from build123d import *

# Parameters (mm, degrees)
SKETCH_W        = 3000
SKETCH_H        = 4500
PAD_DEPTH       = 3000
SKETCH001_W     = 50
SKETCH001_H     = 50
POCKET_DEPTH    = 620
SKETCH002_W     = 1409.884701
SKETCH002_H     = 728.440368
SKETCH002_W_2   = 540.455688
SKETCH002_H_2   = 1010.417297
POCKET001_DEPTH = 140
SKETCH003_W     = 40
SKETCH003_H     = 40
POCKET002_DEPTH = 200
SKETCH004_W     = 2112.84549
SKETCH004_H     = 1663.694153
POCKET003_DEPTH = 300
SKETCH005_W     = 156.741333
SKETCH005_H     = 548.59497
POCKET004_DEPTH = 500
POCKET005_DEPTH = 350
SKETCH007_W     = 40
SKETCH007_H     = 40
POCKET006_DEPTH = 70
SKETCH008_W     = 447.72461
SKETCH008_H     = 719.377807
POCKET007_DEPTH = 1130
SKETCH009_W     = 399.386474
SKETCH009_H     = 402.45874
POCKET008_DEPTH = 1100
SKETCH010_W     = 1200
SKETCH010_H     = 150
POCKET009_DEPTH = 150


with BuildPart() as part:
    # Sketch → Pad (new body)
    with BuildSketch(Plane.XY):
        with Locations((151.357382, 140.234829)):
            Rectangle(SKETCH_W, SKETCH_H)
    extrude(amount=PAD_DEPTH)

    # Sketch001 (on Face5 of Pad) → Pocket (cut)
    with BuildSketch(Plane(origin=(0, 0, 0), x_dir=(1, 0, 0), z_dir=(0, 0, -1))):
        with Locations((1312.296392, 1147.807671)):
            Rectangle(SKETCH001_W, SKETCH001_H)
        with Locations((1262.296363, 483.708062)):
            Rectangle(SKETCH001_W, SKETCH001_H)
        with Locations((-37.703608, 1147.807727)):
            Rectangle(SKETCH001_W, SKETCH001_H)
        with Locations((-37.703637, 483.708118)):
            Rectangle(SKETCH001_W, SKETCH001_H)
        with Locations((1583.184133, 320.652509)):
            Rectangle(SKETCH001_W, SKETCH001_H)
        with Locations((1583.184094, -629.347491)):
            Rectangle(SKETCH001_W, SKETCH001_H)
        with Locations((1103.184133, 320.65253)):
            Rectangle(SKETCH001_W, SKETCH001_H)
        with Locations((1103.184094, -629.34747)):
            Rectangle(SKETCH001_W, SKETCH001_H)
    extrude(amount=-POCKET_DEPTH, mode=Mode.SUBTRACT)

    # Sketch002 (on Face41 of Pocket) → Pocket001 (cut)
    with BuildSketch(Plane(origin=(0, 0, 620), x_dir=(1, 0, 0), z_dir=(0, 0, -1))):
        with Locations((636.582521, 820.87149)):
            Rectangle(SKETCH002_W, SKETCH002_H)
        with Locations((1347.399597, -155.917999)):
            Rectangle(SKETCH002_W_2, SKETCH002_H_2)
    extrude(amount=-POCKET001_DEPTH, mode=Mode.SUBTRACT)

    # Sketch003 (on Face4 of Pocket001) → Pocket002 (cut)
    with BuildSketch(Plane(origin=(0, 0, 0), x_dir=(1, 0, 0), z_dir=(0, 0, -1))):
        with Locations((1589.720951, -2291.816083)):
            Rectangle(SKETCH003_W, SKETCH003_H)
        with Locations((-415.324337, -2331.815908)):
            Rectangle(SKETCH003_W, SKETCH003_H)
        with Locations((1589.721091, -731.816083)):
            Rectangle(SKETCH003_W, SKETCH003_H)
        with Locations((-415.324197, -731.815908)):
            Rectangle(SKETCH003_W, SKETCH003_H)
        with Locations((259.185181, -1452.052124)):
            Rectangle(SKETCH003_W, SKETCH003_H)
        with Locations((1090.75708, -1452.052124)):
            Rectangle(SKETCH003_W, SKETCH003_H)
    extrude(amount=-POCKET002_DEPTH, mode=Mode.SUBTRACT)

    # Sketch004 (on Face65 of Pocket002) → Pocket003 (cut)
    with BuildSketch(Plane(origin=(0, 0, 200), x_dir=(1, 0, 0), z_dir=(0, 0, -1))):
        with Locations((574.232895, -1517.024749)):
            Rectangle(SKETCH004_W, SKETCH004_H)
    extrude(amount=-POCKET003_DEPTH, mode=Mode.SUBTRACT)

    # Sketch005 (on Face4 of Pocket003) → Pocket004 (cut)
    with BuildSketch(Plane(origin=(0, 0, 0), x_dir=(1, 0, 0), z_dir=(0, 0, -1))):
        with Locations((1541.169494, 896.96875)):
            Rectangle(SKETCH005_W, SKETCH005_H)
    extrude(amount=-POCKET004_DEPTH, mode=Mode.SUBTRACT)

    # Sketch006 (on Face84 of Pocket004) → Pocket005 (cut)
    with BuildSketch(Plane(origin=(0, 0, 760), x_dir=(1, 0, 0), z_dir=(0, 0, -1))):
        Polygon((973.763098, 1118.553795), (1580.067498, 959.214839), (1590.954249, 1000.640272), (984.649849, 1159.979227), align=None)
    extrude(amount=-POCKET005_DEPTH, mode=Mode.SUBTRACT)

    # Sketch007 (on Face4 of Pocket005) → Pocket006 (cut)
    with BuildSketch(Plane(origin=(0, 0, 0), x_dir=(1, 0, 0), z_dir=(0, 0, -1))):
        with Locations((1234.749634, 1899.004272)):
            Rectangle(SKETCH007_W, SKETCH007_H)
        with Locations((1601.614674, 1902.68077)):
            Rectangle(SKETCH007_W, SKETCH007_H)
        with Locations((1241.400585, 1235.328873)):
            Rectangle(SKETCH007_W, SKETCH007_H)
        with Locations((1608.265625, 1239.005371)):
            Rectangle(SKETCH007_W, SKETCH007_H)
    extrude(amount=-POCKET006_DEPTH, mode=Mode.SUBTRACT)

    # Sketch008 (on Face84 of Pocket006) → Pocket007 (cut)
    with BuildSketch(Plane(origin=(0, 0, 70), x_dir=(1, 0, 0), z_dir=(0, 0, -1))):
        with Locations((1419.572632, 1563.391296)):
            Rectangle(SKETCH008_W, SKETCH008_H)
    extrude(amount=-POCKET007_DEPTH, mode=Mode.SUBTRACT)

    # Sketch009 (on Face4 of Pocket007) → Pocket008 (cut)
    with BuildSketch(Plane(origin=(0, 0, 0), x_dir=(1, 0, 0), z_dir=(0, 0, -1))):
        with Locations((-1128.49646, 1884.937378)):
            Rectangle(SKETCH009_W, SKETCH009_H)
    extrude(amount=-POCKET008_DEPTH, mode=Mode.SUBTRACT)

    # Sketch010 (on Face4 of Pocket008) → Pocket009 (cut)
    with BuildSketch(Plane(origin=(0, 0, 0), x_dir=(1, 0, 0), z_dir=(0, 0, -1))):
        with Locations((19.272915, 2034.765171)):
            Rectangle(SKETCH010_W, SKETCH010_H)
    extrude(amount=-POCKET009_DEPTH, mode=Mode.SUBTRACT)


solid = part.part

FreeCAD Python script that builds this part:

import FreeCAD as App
import Part
import Sketcher
from FreeCAD import Vector

doc = App.newDocument("Part")
body = doc.addObject("PartDesign::Body", "Body")

sketch1 = body.newObject("Sketcher::SketchObject", "Sketch")
sketch1.AttachmentSupport = (doc.getObject("XY_Plane"), [""])
sketch1.MapMode = "FlatFace"
sketch1.addGeometry([
    Part.LineSegment(Vector(-1348.642618, 2390.234829, 0), Vector(-1348.642618, -2109.765171, 0)),
    Part.LineSegment(Vector(-1348.642618, -2109.765171, 0), Vector(1651.357382, -2109.765171, 0)),
    Part.LineSegment(Vector(1651.357382, -2109.765171, 0), Vector(1651.357382, 2390.234829, 0)),
    Part.LineSegment(Vector(1651.357382, 2390.234829, 0), Vector(-1348.642618, 2390.234829, 0)),
], False)
sketch1.addConstraint([
    Sketcher.Constraint("Coincident", 0, 2, 1, 1),
    Sketcher.Constraint("Coincident", 1, 2, 2, 1),
    Sketcher.Constraint("Coincident", 2, 2, 3, 1),
    Sketcher.Constraint("Coincident", 3, 2, 0, 1),
    Sketcher.Constraint("Vertical", 0),
    Sketcher.Constraint("Horizontal", 1),
    Sketcher.Constraint("Vertical", 2),
    Sketcher.Constraint("Horizontal", 3),
    Sketcher.Constraint("DistanceX", 1, 1, 1, 2, 3000.0),
    Sketcher.Constraint("DistanceY", 0, 2, 0, 1, 4500.0),
    Sketcher.Constraint("DistanceX", 0, 2, -1, 1, 1348.642618),
    Sketcher.Constraint("DistanceY", 0, 2, -1, 1, 2109.765171),
])
pad1 = body.newObject("PartDesign::Pad", "Pad")
pad1.Profile = sketch1
pad1.Length = 3000

sketch2 = body.newObject("Sketcher::SketchObject", "Sketch001")
sketch2.AttachmentSupport = (doc.getObject("XY_Plane"), [""])
sketch2.MapMode = "FlatFace"
sketch2.addGeometry([
    Part.LineSegment(Vector(1287.296392, -1172.807671, 0), Vector(1287.296392, -1122.807671, 0)),
    Part.LineSegment(Vector(1287.296392, -1122.807671, 0), Vector(1337.296392, -1122.807671, 0)),
    Part.LineSegment(Vector(1337.296392, -1122.807671, 0), Vector(1337.296392, -1172.807671, 0)),
    Part.LineSegment(Vector(1337.296392, -1172.807671, 0), Vector(1287.296392, -1172.807671, 0)),
    Part.LineSegment(Vector(1237.296363, -508.708062, 0), Vector(1237.296363, -458.708062, 0)),
    Part.LineSegment(Vector(1237.296363, -458.708062, 0), Vector(1287.296363, -458.708062, 0)),
    Part.LineSegment(Vector(1287.296363, -458.708062, 0), Vector(1287.296363, -508.708062, 0)),
    Part.LineSegment(Vector(1287.296363, -508.708062, 0), Vector(1237.296363, -508.708062, 0)),
    Part.LineSegment(Vector(-62.703608, -1172.807727, 0), Vector(-62.703608, -1122.807727, 0)),
    Part.LineSegment(Vector(-62.703608, -1122.807727, 0), Vector(-12.703608, -1122.807727, 0)),
    Part.LineSegment(Vector(-12.703608, -1122.807727, 0), Vector(-12.703608, -1172.807727, 0)),
    Part.LineSegment(Vector(-12.703608, -1172.807727, 0), Vector(-62.703608, -1172.807727, 0)),
    Part.LineSegment(Vector(-62.703637, -508.708118, 0), Vector(-62.703637, -458.708118, 0)),
    Part.LineSegment(Vector(-62.703637, -458.708118, 0), Vector(-12.703637, -458.708118, 0)),
    Part.LineSegment(Vector(-12.703637, -458.708118, 0), Vector(-12.703637, -508.708118, 0)),
    Part.LineSegment(Vector(-12.703637, -508.708118, 0), Vector(-62.703637, -508.708118, 0)),
    Part.LineSegment(Vector(1558.184133, -345.652509, 0), Vector(1558.184133, -295.652509, 0)),
    Part.LineSegment(Vector(1558.184133, -295.652509, 0), Vector(1608.184133, -295.652509, 0)),
    Part.LineSegment(Vector(1608.184133, -295.652509, 0), Vector(1608.184133, -345.652509, 0)),
    Part.LineSegment(Vector(1608.184133, -345.652509, 0), Vector(1558.184133, -345.652509, 0)),
    Part.LineSegment(Vector(1558.184094, 604.347491, 0), Vector(1558.184094, 654.347491, 0)),
    Part.LineSegment(Vector(1558.184094, 654.347491, 0), Vector(1608.184094, 654.347491, 0)),
    Part.LineSegment(Vector(1608.184094, 654.347491, 0), Vector(1608.184094, 604.347491, 0)),
    Part.LineSegment(Vector(1608.184094, 604.347491, 0), Vector(1558.184094, 604.347491, 0)),
    Part.LineSegment(Vector(1078.184133, -345.65253, 0), Vector(1078.184133, -295.65253, 0)),
    Part.LineSegment(Vector(1078.184133, -295.65253, 0), Vector(1128.184133, -295.65253, 0)),
    Part.LineSegment(Vector(1128.184133, -295.65253, 0), Vector(1128.184133, -345.65253, 0)),
    Part.LineSegment(Vector(1128.184133, -345.65253, 0), Vector(1078.184133, -345.65253, 0)),
    Part.LineSegment(Vector(1078.184094, 604.34747, 0), Vector(1078.184094, 654.34747, 0)),
    Part.LineSegment(Vector(1078.184094, 654.34747, 0), Vector(1128.184094, 654.34747, 0)),
    Part.LineSegment(Vector(1128.184094, 654.34747, 0), Vector(1128.184094, 604.34747, 0)),
    Part.LineSegment(Vector(1128.184094, 604.34747, 0), Vector(1078.184094, 604.34747, 0)),
], False)
sketch2.addConstraint([
    Sketcher.Constraint("Coincident", 0, 2, 1, 1),
    Sketcher.Constraint("Coincident", 1, 2, 2, 1),
    Sketcher.Constraint("Coincident", 2, 2, 3, 1),
    Sketcher.Constraint("Coincident", 3, 2, 0, 1),
    Sketcher.Constraint("Coincident", 4, 2, 5, 1),
    Sketcher.Constraint("Coincident", 5, 2, 6, 1),
    Sketcher.Constraint("Coincident", 6, 2, 7, 1),
    Sketcher.Constraint("Coincident", 7, 2, 4, 1),
    Sketcher.Constraint("Coincident", 8, 2, 9, 1),
    Sketcher.Constraint("Coincident", 9, 2, 10, 1),
    Sketcher.Constraint("Coincident", 10, 2, 11, 1),
    Sketcher.Constraint("Coincident", 11, 2, 8, 1),
    Sketcher.Constraint("Coincident", 12, 2, 13, 1),
    Sketcher.Constraint("Coincident", 13, 2, 14, 1),
    Sketcher.Constraint("Coincident", 14, 2, 15, 1),
    Sketcher.Constraint("Coincident", 15, 2, 12, 1),
    Sketcher.Constraint("Coincident", 16, 2, 17, 1),
    Sketcher.Constraint("Coincident", 17, 2, 18, 1),
    Sketcher.Constraint("Coincident", 18, 2, 19, 1),
    Sketcher.Constraint("Coincident", 19, 2, 16, 1),
    Sketcher.Constraint("Coincident", 20, 2, 21, 1),
    Sketcher.Constraint("Coincident", 21, 2, 22, 1),
    Sketcher.Constraint("Coincident", 22, 2, 23, 1),
    Sketcher.Constraint("Coincident", 23, 2, 20, 1),
    Sketcher.Constraint("Coincident", 24, 2, 25, 1),
    Sketcher.Constraint("Coincident", 25, 2, 26, 1),
    Sketcher.Constraint("Coincident", 26, 2, 27, 1),
    Sketcher.Constraint("Coincident", 27, 2, 24, 1),
    Sketcher.Constraint("Coincident", 28, 2, 29, 1),
    Sketcher.Constraint("Coincident", 29, 2, 30, 1),
    Sketcher.Constraint("Coincident", 30, 2, 31, 1),
    Sketcher.Constraint("Coincident", 31, 2, 28, 1),
    Sketcher.Constraint("Vertical", 0),
    Sketcher.Constraint("Horizontal", 1),
    Sketcher.Constraint("Vertical", 2),
    Sketcher.Constraint("Horizontal", 3),
    Sketcher.Constraint("Vertical", 4),
    Sketcher.Constraint("Horizontal", 5),
    Sketcher.Constraint("Vertical", 6),
    Sketcher.Constraint("Horizontal", 7),
    Sketcher.Constraint("Vertical", 8),
    Sketcher.Constraint("Horizontal", 9),
    Sketcher.Constraint("Vertical", 10),
    Sketcher.Constraint("Horizontal", 11),
    Sketcher.Constraint("Vertical", 12),
    Sketcher.Constraint("Horizontal", 13),
    Sketcher.Constraint("Vertical", 14),
    Sketcher.Constraint("Horizontal", 15),
    Sketcher.Constraint("Vertical", 16),
    Sketcher.Constraint("Horizontal", 17),
    Sketcher.Constraint("Vertical", 18),
    Sketcher.Constraint("Horizontal", 19),
    Sketcher.Constraint("Vertical", 20),
    Sketcher.Constraint("Horizontal", 21),
    Sketcher.Constraint("Vertical", 22),
    Sketcher.Constraint("Horizontal", 23),
    Sketcher.Constraint("Vertical", 24),
    Sketcher.Constraint("Horizontal", 25),
    Sketcher.Constraint("Vertical", 26),
    Sketcher.Constraint("Horizontal", 27),
    Sketcher.Constraint("Vertical", 28),
    Sketcher.Constraint("Horizontal", 29),
    Sketcher.Constraint("Vertical", 30),
    Sketcher.Constraint("Horizontal", 31),
    Sketcher.Constraint("Equal", 3, 5),
    Sketcher.Constraint("Equal", 7, 9),
    Sketcher.Constraint("Equal", 11, 13),
    Sketcher.Constraint("Equal", 15, 17),
    Sketcher.Constraint("Equal", 19, 21),
    Sketcher.Constraint("Equal", 23, 25),
    Sketcher.Constraint("Equal", 27, 29),
    Sketcher.Constraint("Equal", 31, 0),
    Sketcher.Constraint("Equal", 2, 4),
    Sketcher.Constraint("Equal", 6, 8),
    Sketcher.Constraint("Equal", 10, 12),
    Sketcher.Constraint("Equal", 14, 16),
    Sketcher.Constraint("Equal", 18, 20),
    Sketcher.Constraint("Equal", 22, 24),
    Sketcher.Constraint("Equal", 26, 28),
    Sketcher.Constraint("DistanceX", 1, 1, 1, 2, 50.0),
    Sketcher.Constraint("DistanceX", 8, 2, 0, 2, 1350.0),
    Sketcher.Constraint("DistanceX", 12, 2, 4, 2, 1300.0),
    Sketcher.Constraint("DistanceY", 16, 2, 20, 2, 950.0),
    Sketcher.Constraint("DistanceX", 24, 2, 16, 2, 480.0),
    Sketcher.Constraint("DistanceX", 28, 2, 20, 2, 480.0),
    Sketcher.Constraint("DistanceY", 24, 2, 28, 2, 950.0),
    Sketcher.Constraint("DistanceX", -1, 1, 0, 2, 1287.296392),
    Sketcher.Constraint("DistanceY", 0, 2, -1, 1, 1122.807671),
    Sketcher.Constraint("DistanceY", 4, 2, -1, 1, 458.708062),
    Sketcher.Constraint("DistanceY", 12, 2, -1, 1, 458.708118),
    Sketcher.Constraint("DistanceY", 16, 2, -1, 1, 295.652509),
    Sketcher.Constraint("DistanceY", 24, 2, -1, 1, 295.65253),
    Sketcher.Constraint("DistanceX", 4, 2, 0, 2, 50.000029),
    Sketcher.Constraint("DistanceY", 8, 2, 12, 2, 664.099609),
    Sketcher.Constraint("DistanceX", 5, 2, 16, 2, 270.88777),
    Sketcher.Constraint("DistanceX", 20, 2, 17, 2, 50.000039),
])
pocket1 = body.newObject("PartDesign::Pocket", "Pocket")
pocket1.Profile = sketch2
pocket1.Length = 620
pocket1.Reversed = True

sketch3 = body.newObject("Sketcher::SketchObject", "Sketch002")
sketch3.AttachmentSupport = (doc.getObject("XY_Plane"), [""])
sketch3.MapMode = "FlatFace"
sketch3.AttachmentOffset = App.Placement(Vector(0, 0, 620), App.Rotation())
sketch3.addGeometry([
    Part.LineSegment(Vector(-68.35983, -1185.091674, 0), Vector(-68.35983, -456.651306, 0)),
    Part.LineSegment(Vector(-68.35983, -456.651306, 0), Vector(1341.524872, -456.651306, 0)),
    Part.LineSegment(Vector(1341.524872, -456.651306, 0), Vector(1341.524872, -1185.091674, 0)),
    Part.LineSegment(Vector(1341.524872, -1185.091674, 0), Vector(-68.35983, -1185.091674, 0)),
    Part.LineSegment(Vector(1077.171753, -349.290649, 0), Vector(1077.171753, 661.126647, 0)),
    Part.LineSegment(Vector(1077.171753, 661.126647, 0), Vector(1617.627441, 661.126647, 0)),
    Part.LineSegment(Vector(1617.627441, 661.126647, 0), Vector(1617.627441, -349.290649, 0)),
    Part.LineSegment(Vector(1617.627441, -349.290649, 0), Vector(1077.171753, -349.290649, 0)),
], False)
sketch3.addConstraint([
    Sketcher.Constraint("Coincident", 0, 2, 1, 1),
    Sketcher.Constraint("Coincident", 1, 2, 2, 1),
    Sketcher.Constraint("Coincident", 2, 2, 3, 1),
    Sketcher.Constraint("Coincident", 3, 2, 0, 1),
    Sketcher.Constraint("Coincident", 4, 2, 5, 1),
    Sketcher.Constraint("Coincident", 5, 2, 6, 1),
    Sketcher.Constraint("Coincident", 6, 2, 7, 1),
    Sketcher.Constraint("Coincident", 7, 2, 4, 1),
    Sketcher.Constraint("Vertical", 0),
    Sketcher.Constraint("Horizontal", 1),
    Sketcher.Constraint("Vertical", 2),
    Sketcher.Constraint("Horizontal", 3),
    Sketcher.Constraint("Vertical", 4),
    Sketcher.Constraint("Horizontal", 5),
    Sketcher.Constraint("Vertical", 6),
    Sketcher.Constraint("Horizontal", 7),
    Sketcher.Constraint("DistanceX", 1, 1, 1, 2, 1409.884701),
    Sketcher.Constraint("DistanceX", 5, 1, 5, 2, 540.455688),
    Sketcher.Constraint("DistanceY", 0, 1, 0, 2, 728.440368),
    Sketcher.Constraint("DistanceY", 4, 1, 4, 2, 1010.417297),
    Sketcher.Constraint("DistanceX", 0, 2, -1, 1, 68.35983),
    Sketcher.Constraint("DistanceX", -1, 1, 5, 2, 1617.627441),
    Sketcher.Constraint("DistanceY", 6, 2, -1, 1, 349.290649),
    Sketcher.Constraint("DistanceY", 2, 2, 4, 2, 1846.218322),
])
pocket2 = body.newObject("PartDesign::Pocket", "Pocket001")
pocket2.Profile = sketch3
pocket2.Length = 140
pocket2.Reversed = True

sketch4 = body.newObject("Sketcher::SketchObject", "Sketch003")
sketch4.AttachmentSupport = (doc.getObject("XY_Plane"), [""])
sketch4.MapMode = "FlatFace"
sketch4.addGeometry([
    Part.LineSegment(Vector(1569.720951, 2271.816083, 0), Vector(1569.720951, 2311.816083, 0)),
    Part.LineSegment(Vector(1569.720951, 2311.816083, 0), Vector(1609.720951, 2311.816083, 0)),
    Part.LineSegment(Vector(1609.720951, 2311.816083, 0), Vector(1609.720951, 2271.816083, 0)),
    Part.LineSegment(Vector(1609.720951, 2271.816083, 0), Vector(1569.720951, 2271.816083, 0)),
    Part.LineSegment(Vector(-435.324337, 2311.815908, 0), Vector(-435.324337, 2351.815908, 0)),
    Part.LineSegment(Vector(-435.324337, 2351.815908, 0), Vector(-395.324337, 2351.815908, 0)),
    Part.LineSegment(Vector(-395.324337, 2351.815908, 0), Vector(-395.324337, 2311.815908, 0)),
    Part.LineSegment(Vector(-395.324337, 2311.815908, 0), Vector(-435.324337, 2311.815908, 0)),
    Part.LineSegment(Vector(1569.721091, 711.816083, 0), Vector(1569.721091, 751.816083, 0)),
    Part.LineSegment(Vector(1569.721091, 751.816083, 0), Vector(1609.721091, 751.816083, 0)),
    Part.LineSegment(Vector(1609.721091, 751.816083, 0), Vector(1609.721091, 711.816083, 0)),
    Part.LineSegment(Vector(1609.721091, 711.816083, 0), Vector(1569.721091, 711.816083, 0)),
    Part.LineSegment(Vector(-435.324197, 711.815908, 0), Vector(-435.324197, 751.815908, 0)),
    Part.LineSegment(Vector(-435.324197, 751.815908, 0), Vector(-395.324197, 751.815908, 0)),
    Part.LineSegment(Vector(-395.324197, 751.815908, 0), Vector(-395.324197, 711.815908, 0)),
    Part.LineSegment(Vector(-395.324197, 711.815908, 0), Vector(-435.324197, 711.815908, 0)),
    Part.LineSegment(Vector(239.185181, 1432.052124, 0), Vector(239.185181, 1472.052124, 0)),
    Part.LineSegment(Vector(239.185181, 1472.052124, 0), Vector(279.185181, 1472.052124, 0)),
    Part.LineSegment(Vector(279.185181, 1472.052124, 0), Vector(279.185181, 1432.052124, 0)),
    Part.LineSegment(Vector(279.185181, 1432.052124, 0), Vector(239.185181, 1432.052124, 0)),
    Part.LineSegment(Vector(1070.75708, 1432.052124, 0), Vector(1070.75708, 1472.052124, 0)),
    Part.LineSegment(Vector(1070.75708, 1472.052124, 0), Vector(1110.75708, 1472.052124, 0)),
    Part.LineSegment(Vector(1110.75708, 1472.052124, 0), Vector(1110.75708, 1432.052124, 0)),
    Part.LineSegment(Vector(1110.75708, 1432.052124, 0), Vector(1070.75708, 1432.052124, 0)),
], False)
sketch4.addConstraint([
    Sketcher.Constraint("Coincident", 0, 2, 1, 1),
    Sketcher.Constraint("Coincident", 1, 2, 2, 1),
    Sketcher.Constraint("Coincident", 2, 2, 3, 1),
    Sketcher.Constraint("Coincident", 3, 2, 0, 1),
    Sketcher.Constraint("Coincident", 4, 2, 5, 1),
    Sketcher.Constraint("Coincident", 5, 2, 6, 1),
    Sketcher.Constraint("Coincident", 6, 2, 7, 1),
    Sketcher.Constraint("Coincident", 7, 2, 4, 1),
    Sketcher.Constraint("Coincident", 8, 2, 9, 1),
    Sketcher.Constraint("Coincident", 9, 2, 10, 1),
    Sketcher.Constraint("Coincident", 10, 2, 11, 1),
    Sketcher.Constraint("Coincident", 11, 2, 8, 1),
    Sketcher.Constraint("Coincident", 12, 2, 13, 1),
    Sketcher.Constraint("Coincident", 13, 2, 14, 1),
    Sketcher.Constraint("Coincident", 14, 2, 15, 1),
    Sketcher.Constraint("Coincident", 15, 2, 12, 1),
    Sketcher.Constraint("Coincident", 16, 2, 17, 1),
    Sketcher.Constraint("Coincident", 17, 2, 18, 1),
    Sketcher.Constraint("Coincident", 18, 2, 19, 1),
    Sketcher.Constraint("Coincident", 19, 2, 16, 1),
    Sketcher.Constraint("Coincident", 20, 2, 21, 1),
    Sketcher.Constraint("Coincident", 21, 2, 22, 1),
    Sketcher.Constraint("Coincident", 22, 2, 23, 1),
    Sketcher.Constraint("Coincident", 23, 2, 20, 1),
    Sketcher.Constraint("Vertical", 0),
    Sketcher.Constraint("Horizontal", 1),
    Sketcher.Constraint("Vertical", 2),
    Sketcher.Constraint("Horizontal", 3),
    Sketcher.Constraint("Vertical", 4),
    Sketcher.Constraint("Horizontal", 5),
    Sketcher.Constraint("Vertical", 6),
    Sketcher.Constraint("Horizontal", 7),
    Sketcher.Constraint("Vertical", 8),
    Sketcher.Constraint("Horizontal", 9),
    Sketcher.Constraint("Vertical", 10),
    Sketcher.Constraint("Horizontal", 11),
    Sketcher.Constraint("Vertical", 12),
    Sketcher.Constraint("Horizontal", 13),
    Sketcher.Constraint("Vertical", 14),
    Sketcher.Constraint("Horizontal", 15),
    Sketcher.Constraint("Vertical", 16),
    Sketcher.Constraint("Horizontal", 17),
    Sketcher.Constraint("Vertical", 18),
    Sketcher.Constraint("Horizontal", 19),
    Sketcher.Constraint("Vertical", 20),
    Sketcher.Constraint("Horizontal", 21),
    Sketcher.Constraint("Vertical", 22),
    Sketcher.Constraint("Horizontal", 23),
    Sketcher.Constraint("Horizontal", 17, 2, 20, 2),
    Sketcher.Constraint("Horizontal", 19, 2, 22, 2),
    Sketcher.Constraint("Equal", 3, 5),
    Sketcher.Constraint("Equal", 7, 9),
    Sketcher.Constraint("Equal", 11, 13),
    Sketcher.Constraint("Equal", 15, 17),
    Sketcher.Constraint("Equal", 19, 21),
    Sketcher.Constraint("Equal", 23, 0),
    Sketcher.Constraint("Equal", 2, 4),
    Sketcher.Constraint("Equal", 6, 8),
    Sketcher.Constraint("Equal", 10, 12),
    Sketcher.Constraint("Equal", 14, 16),
    Sketcher.Constraint("DistanceX", 1, 1, 1, 2, 40.0),
    Sketcher.Constraint("DistanceY", 8, 2, 3, 2, 1520.0),
    Sketcher.Constraint("DistanceY", 12, 2, 7, 2, 1560.0),
    Sketcher.Constraint("DistanceX", 17, 2, 20, 2, 791.571899),
    Sketcher.Constraint("DistanceX", -1, 1, 0, 2, 1569.720951),
    Sketcher.Constraint("DistanceY", -1, 1, 4, 2, 2351.815908),
    Sketcher.Constraint("DistanceX", -1, 1, 8, 2, 1569.721091),
    Sketcher.Constraint("DistanceX", -1, 1, 16, 2, 239.185181),
    Sketcher.Constraint("DistanceX", 4, 2, 0, 2, 2005.045288),
    Sketcher.Constraint("DistanceX", 7, 2, 12, 2, 0.00014),
    Sketcher.Constraint("DistanceY", 8, 2, 20, 2, 720.236041),
    Sketcher.Constraint("DistanceY", -1, 1, 0, 2, 2311.816083),
])
pocket3 = body.newObject("PartDesign::Pocket", "Pocket002")
pocket3.Profile = sketch4
pocket3.Length = 200
pocket3.Reversed = True

sketch5 = body.newObject("Sketcher::SketchObject", "Sketch004")
sketch5.AttachmentSupport = (doc.getObject("XY_Plane"), [""])
sketch5.MapMode = "FlatFace"
sketch5.AttachmentOffset = App.Placement(Vector(0, 0, 200), App.Rotation())
sketch5.addGeometry([
    Part.LineSegment(Vector(-482.18985, 685.177672, 0), Vector(-482.18985, 2348.871825, 0)),
    Part.LineSegment(Vector(-482.18985, 2348.871825, 0), Vector(1630.65564, 2348.871825, 0)),
    Part.LineSegment(Vector(1630.65564, 2348.871825, 0), Vector(1630.65564, 685.177672, 0)),
    Part.LineSegment(Vector(1630.65564, 685.177672, 0), Vector(-482.18985, 685.177672, 0)),
], False)
sketch5.addConstraint([
    Sketcher.Constraint("Coincident", 0, 2, 1, 1),
    Sketcher.Constraint("Coincident", 1, 2, 2, 1),
    Sketcher.Constraint("Coincident", 2, 2, 3, 1),
    Sketcher.Constraint("Coincident", 3, 2, 0, 1),
    Sketcher.Constraint("Vertical", 0),
    Sketcher.Constraint("Horizontal", 1),
    Sketcher.Constraint("Vertical", 2),
    Sketcher.Constraint("Horizontal", 3),
    Sketcher.Constraint("DistanceX", 1, 1, 1, 2, 2112.84549),
    Sketcher.Constraint("DistanceY", 0, 1, 0, 2, 1663.694153),
    Sketcher.Constraint("DistanceX", 0, 2, -1, 1, 482.18985),
    Sketcher.Constraint("DistanceY", -1, 1, 0, 2, 2348.871825),
])
pocket4 = body.newObject("PartDesign::Pocket", "Pocket003")
pocket4.Profile = sketch5
pocket4.Length = 300
pocket4.Reversed = True

sketch6 = body.newObject("Sketcher::SketchObject", "Sketch005")
sketch6.AttachmentSupport = (doc.getObject("XY_Plane"), [""])
sketch6.MapMode = "FlatFace"
sketch6.addGeometry([
    Part.LineSegment(Vector(1462.798828, -1171.266235, 0), Vector(1462.798828, -622.671265, 0)),
    Part.LineSegment(Vector(1462.798828, -622.671265, 0), Vector(1619.54016, -622.671265, 0)),
    Part.LineSegment(Vector(1619.54016, -622.671265, 0), Vector(1619.54016, -1171.266235, 0)),
    Part.LineSegment(Vector(1619.54016, -1171.266235, 0), Vector(1462.798828, -1171.266235, 0)),
], False)
sketch6.addConstraint([
    Sketcher.Constraint("Coincident", 0, 2, 1, 1),
    Sketcher.Constraint("Coincident", 1, 2, 2, 1),
    Sketcher.Constraint("Coincident", 2, 2, 3, 1),
    Sketcher.Constraint("Coincident", 3, 2, 0, 1),
    Sketcher.Constraint("Vertical", 0),
    Sketcher.Constraint("Horizontal", 1),
    Sketcher.Constraint("Vertical", 2),
    Sketcher.Constraint("Horizontal", 3),
    Sketcher.Constraint("DistanceY", 0, 1, 0, 2, 548.59497),
    Sketcher.Constraint("DistanceX", 1, 1, 1, 2, 156.741333),
    Sketcher.Constraint("DistanceX", -1, 1, 1, 2, 1619.54016),
    Sketcher.Constraint("DistanceY", 0, 2, -1, 1, 622.671265),
])
pocket5 = body.newObject("PartDesign::Pocket", "Pocket004")
pocket5.Profile = sketch6
pocket5.Length = 500
pocket5.Reversed = True

sketch7 = body.newObject("Sketcher::SketchObject", "Sketch006")
sketch7.AttachmentSupport = (doc.getObject("XY_Plane"), [""])
sketch7.MapMode = "FlatFace"
sketch7.AttachmentOffset = App.Placement(Vector(0, 0, 760), App.Rotation())
sketch7.addGeometry([
    Part.LineSegment(Vector(973.763098, -1118.553795, 0), Vector(1580.067498, -959.214839, 0)),
    Part.LineSegment(Vector(1580.067498, -959.214839, 0), Vector(1590.954249, -1000.640272, 0)),
    Part.LineSegment(Vector(1590.954249, -1000.640272, 0), Vector(984.649849, -1159.979227, 0)),
    Part.LineSegment(Vector(984.649849, -1159.979227, 0), Vector(973.763098, -1118.553795, 0)),
], False)
sketch7.addConstraint([
    Sketcher.Constraint("Coincident", 0, 2, 1, 1),
    Sketcher.Constraint("Coincident", 1, 2, 2, 1),
    Sketcher.Constraint("Coincident", 2, 2, 3, 1),
    Sketcher.Constraint("Coincident", 3, 2, 0, 1),
    Sketcher.Constraint("Perpendicular", 0, 1),
    Sketcher.Constraint("Perpendicular", 1, 2),
    Sketcher.Constraint("Perpendicular", 2, 3),
    Sketcher.Constraint("DistanceX", -1, 1, 3, 2, 973.763098),
    Sketcher.Constraint("DistanceX", 2, 2, 1, 2, 606.3044),
    Sketcher.Constraint("Distance", 0, 626.892278),
    Sketcher.Constraint("Distance", 1, 42.832089),
    Sketcher.Constraint("DistanceY", 0, 2, -1, 1, 959.214839),
])
pocket6 = body.newObject("PartDesign::Pocket", "Pocket005")
pocket6.Profile = sketch7
pocket6.Length = 350
pocket6.Reversed = True

sketch8 = body.newObject("Sketcher::SketchObject", "Sketch007")
sketch8.AttachmentSupport = (doc.getObject("XY_Plane"), [""])
sketch8.MapMode = "FlatFace"
sketch8.addGeometry([
    Part.LineSegment(Vector(1214.749634, -1919.004272, 0), Vector(1214.749634, -1879.004272, 0)),
    Part.LineSegment(Vector(1214.749634, -1879.004272, 0), Vector(1254.749634, -1879.004272, 0)),
    Part.LineSegment(Vector(1254.749634, -1879.004272, 0), Vector(1254.749634, -1919.004272, 0)),
    Part.LineSegment(Vector(1254.749634, -1919.004272, 0), Vector(1214.749634, -1919.004272, 0)),
    Part.LineSegment(Vector(1581.614674, -1922.68077, 0), Vector(1581.614674, -1882.68077, 0)),
    Part.LineSegment(Vector(1581.614674, -1882.68077, 0), Vector(1621.614674, -1882.68077, 0)),
    Part.LineSegment(Vector(1621.614674, -1882.68077, 0), Vector(1621.614674, -1922.68077, 0)),
    Part.LineSegment(Vector(1621.614674, -1922.68077, 0), Vector(1581.614674, -1922.68077, 0)),
    Part.LineSegment(Vector(1221.400585, -1255.328873, 0), Vector(1221.400585, -1215.328873, 0)),
    Part.LineSegment(Vector(1221.400585, -1215.328873, 0), Vector(1261.400585, -1215.328873, 0)),
    Part.LineSegment(Vector(1261.400585, -1215.328873, 0), Vector(1261.400585, -1255.328873, 0)),
    Part.LineSegment(Vector(1261.400585, -1255.328873, 0), Vector(1221.400585, -1255.328873, 0)),
    Part.LineSegment(Vector(1588.265625, -1259.005371, 0), Vector(1588.265625, -1219.005371, 0)),
    Part.LineSegment(Vector(1588.265625, -1219.005371, 0), Vector(1628.265625, -1219.005371, 0)),
    Part.LineSegment(Vector(1628.265625, -1219.005371, 0), Vector(1628.265625, -1259.005371, 0)),
    Part.LineSegment(Vector(1628.265625, -1259.005371, 0), Vector(1588.265625, -1259.005371, 0)),
], False)
sketch8.addConstraint([
    Sketcher.Constraint("Coincident", 0, 2, 1, 1),
    Sketcher.Constraint("Coincident", 1, 2, 2, 1),
    Sketcher.Constraint("Coincident", 2, 2, 3, 1),
    Sketcher.Constraint("Coincident", 3, 2, 0, 1),
    Sketcher.Constraint("Coincident", 4, 2, 5, 1),
    Sketcher.Constraint("Coincident", 5, 2, 6, 1),
    Sketcher.Constraint("Coincident", 6, 2, 7, 1),
    Sketcher.Constraint("Coincident", 7, 2, 4, 1),
    Sketcher.Constraint("Coincident", 8, 2, 9, 1),
    Sketcher.Constraint("Coincident", 9, 2, 10, 1),
    Sketcher.Constraint("Coincident", 10, 2, 11, 1),
    Sketcher.Constraint("Coincident", 11, 2, 8, 1),
    Sketcher.Constraint("Coincident", 12, 2, 13, 1),
    Sketcher.Constraint("Coincident", 13, 2, 14, 1),
    Sketcher.Constraint("Coincident", 14, 2, 15, 1),
    Sketcher.Constraint("Coincident", 15, 2, 12, 1),
    Sketcher.Constraint("Vertical", 0),
    Sketcher.Constraint("Horizontal", 1),
    Sketcher.Constraint("Vertical", 2),
    Sketcher.Constraint("Horizontal", 3),
    Sketcher.Constraint("Vertical", 4),
    Sketcher.Constraint("Horizontal", 5),
    Sketcher.Constraint("Vertical", 6),
    Sketcher.Constraint("Horizontal", 7),
    Sketcher.Constraint("Vertical", 8),
    Sketcher.Constraint("Horizontal", 9),
    Sketcher.Constraint("Vertical", 10),
    Sketcher.Constraint("Horizontal", 11),
    Sketcher.Constraint("Vertical", 12),
    Sketcher.Constraint("Horizontal", 13),
    Sketcher.Constraint("Vertical", 14),
    Sketcher.Constraint("Horizontal", 15),
    Sketcher.Constraint("Equal", 3, 5),
    Sketcher.Constraint("Equal", 7, 9),
    Sketcher.Constraint("Equal", 11, 13),
    Sketcher.Constraint("Equal", 15, 0),
    Sketcher.Constraint("Equal", 2, 4),
    Sketcher.Constraint("Equal", 6, 8),
    Sketcher.Constraint("Equal", 10, 12),
    Sketcher.Constraint("DistanceX", 1, 1, 1, 2, 40.0),
    Sketcher.Constraint("DistanceY", 4, 2, 1, 2, 3.676498),
    Sketcher.Constraint("DistanceY", 0, 2, 8, 2, 663.675399),
    Sketcher.Constraint("DistanceY", 12, 2, 9, 2, 3.676498),
    Sketcher.Constraint("DistanceY", 0, 2, -1, 1, 1879.004272),
    Sketcher.Constraint("DistanceX", 1, 2, 4, 2, 326.86504),
    Sketcher.Constraint("DistanceX", 0, 2, 8, 2, 6.650951),
    Sketcher.Constraint("DistanceX", 9, 2, 12, 2, 326.86504),
    Sketcher.Constraint("DistanceX", -1, 1, 0, 2, 1214.749634),
])
pocket7 = body.newObject("PartDesign::Pocket", "Pocket006")
pocket7.Profile = sketch8
pocket7.Length = 70
pocket7.Reversed = True

sketch9 = body.newObject("Sketcher::SketchObject", "Sketch008")
sketch9.AttachmentSupport = (doc.getObject("XY_Plane"), [""])
sketch9.MapMode = "FlatFace"
sketch9.AttachmentOffset = App.Placement(Vector(0, 0, 70), App.Rotation())
sketch9.addGeometry([
    Part.LineSegment(Vector(1195.710327, -1923.080199, 0), Vector(1195.710327, -1203.702393, 0)),
    Part.LineSegment(Vector(1195.710327, -1203.702393, 0), Vector(1643.434937, -1203.702393, 0)),
    Part.LineSegment(Vector(1643.434937, -1203.702393, 0), Vector(1643.434937, -1923.080199, 0)),
    Part.LineSegment(Vector(1643.434937, -1923.080199, 0), Vector(1195.710327, -1923.080199, 0)),
], False)
sketch9.addConstraint([
    Sketcher.Constraint("Coincident", 0, 2, 1, 1),
    Sketcher.Constraint("Coincident", 1, 2, 2, 1),
    Sketcher.Constraint("Coincident", 2, 2, 3, 1),
    Sketcher.Constraint("Coincident", 3, 2, 0, 1),
    Sketcher.Constraint("Vertical", 0),
    Sketcher.Constraint("Horizontal", 1),
    Sketcher.Constraint("Vertical", 2),
    Sketcher.Constraint("Horizontal", 3),
    Sketcher.Constraint("DistanceX", 1, 1, 1, 2, 447.72461),
    Sketcher.Constraint("DistanceY", 2, 2, -1, 1, 1923.080199),
    Sketcher.Constraint("DistanceY", 0, 1, 0, 2, 719.377807),
    Sketcher.Constraint("DistanceX", -1, 1, 0, 2, 1195.710327),
])
pocket8 = body.newObject("PartDesign::Pocket", "Pocket007")
pocket8.Profile = sketch9
pocket8.Length = 1130
pocket8.Reversed = True

sketch10 = body.newObject("Sketcher::SketchObject", "Sketch009")
sketch10.AttachmentSupport = (doc.getObject("XY_Plane"), [""])
sketch10.MapMode = "FlatFace"
sketch10.addGeometry([
    Part.LineSegment(Vector(-1328.189697, -2086.166748, 0), Vector(-1328.189697, -1683.708008, 0)),
    Part.LineSegment(Vector(-1328.189697, -1683.708008, 0), Vector(-928.803223, -1683.708008, 0)),
    Part.LineSegment(Vector(-928.803223, -1683.708008, 0), Vector(-928.803223, -2086.166748, 0)),
    Part.LineSegment(Vector(-928.803223, -2086.166748, 0), Vector(-1328.189697, -2086.166748, 0)),
], False)
sketch10.addConstraint([
    Sketcher.Constraint("Coincident", 0, 2, 1, 1),
    Sketcher.Constraint("Coincident", 1, 2, 2, 1),
    Sketcher.Constraint("Coincident", 2, 2, 3, 1),
    Sketcher.Constraint("Coincident", 3, 2, 0, 1),
    Sketcher.Constraint("Vertical", 0),
    Sketcher.Constraint("Horizontal", 1),
    Sketcher.Constraint("Vertical", 2),
    Sketcher.Constraint("Horizontal", 3),
    Sketcher.Constraint("DistanceY", 0, 1, 0, 2, 402.45874),
    Sketcher.Constraint("DistanceX", 1, 1, 1, 2, 399.386474),
    Sketcher.Constraint("DistanceY", 0, 2, -1, 1, 1683.708008),
    Sketcher.Constraint("DistanceX", 0, 2, -1, 1, 1328.189697),
])
pocket9 = body.newObject("PartDesign::Pocket", "Pocket008")
pocket9.Profile = sketch10
pocket9.Length = 1100
pocket9.Reversed = True

sketch11 = body.newObject("Sketcher::SketchObject", "Sketch010")
sketch11.AttachmentSupport = (doc.getObject("XY_Plane"), [""])
sketch11.MapMode = "FlatFace"
sketch11.addGeometry([
    Part.LineSegment(Vector(-580.727085, -2109.765171, 0), Vector(-580.727085, -1959.765171, 0)),
    Part.LineSegment(Vector(-580.727085, -1959.765171, 0), Vector(619.272915, -1959.765171, 0)),
    Part.LineSegment(Vector(619.272915, -1959.765171, 0), Vector(619.272915, -2109.765171, 0)),
    Part.LineSegment(Vector(619.272915, -2109.765171, 0), Vector(-580.727085, -2109.765171, 0)),
], False)
sketch11.addConstraint([
    Sketcher.Constraint("Coincident", 0, 2, 1, 1),
    Sketcher.Constraint("Coincident", 1, 2, 2, 1),
    Sketcher.Constraint("Coincident", 2, 2, 3, 1),
    Sketcher.Constraint("Coincident", 3, 2, 0, 1),
    Sketcher.Constraint("Vertical", 0),
    Sketcher.Constraint("Horizontal", 1),
    Sketcher.Constraint("Vertical", 2),
    Sketcher.Constraint("Horizontal", 3),
    Sketcher.Constraint("DistanceX", 1, 1, 1, 2, 1200.0),
    Sketcher.Constraint("DistanceY", 0, 1, 0, 2, 150.0),
    Sketcher.Constraint("DistanceY", 0, 2, -1, 1, 1959.765171),
    Sketcher.Constraint("DistanceX", 0, 2, -1, 1, 580.727085),
])
pocket10 = body.newObject("PartDesign::Pocket", "Pocket009")
pocket10.Profile = sketch11
pocket10.Length = 150
pocket10.Reversed = True

doc.recompute()
